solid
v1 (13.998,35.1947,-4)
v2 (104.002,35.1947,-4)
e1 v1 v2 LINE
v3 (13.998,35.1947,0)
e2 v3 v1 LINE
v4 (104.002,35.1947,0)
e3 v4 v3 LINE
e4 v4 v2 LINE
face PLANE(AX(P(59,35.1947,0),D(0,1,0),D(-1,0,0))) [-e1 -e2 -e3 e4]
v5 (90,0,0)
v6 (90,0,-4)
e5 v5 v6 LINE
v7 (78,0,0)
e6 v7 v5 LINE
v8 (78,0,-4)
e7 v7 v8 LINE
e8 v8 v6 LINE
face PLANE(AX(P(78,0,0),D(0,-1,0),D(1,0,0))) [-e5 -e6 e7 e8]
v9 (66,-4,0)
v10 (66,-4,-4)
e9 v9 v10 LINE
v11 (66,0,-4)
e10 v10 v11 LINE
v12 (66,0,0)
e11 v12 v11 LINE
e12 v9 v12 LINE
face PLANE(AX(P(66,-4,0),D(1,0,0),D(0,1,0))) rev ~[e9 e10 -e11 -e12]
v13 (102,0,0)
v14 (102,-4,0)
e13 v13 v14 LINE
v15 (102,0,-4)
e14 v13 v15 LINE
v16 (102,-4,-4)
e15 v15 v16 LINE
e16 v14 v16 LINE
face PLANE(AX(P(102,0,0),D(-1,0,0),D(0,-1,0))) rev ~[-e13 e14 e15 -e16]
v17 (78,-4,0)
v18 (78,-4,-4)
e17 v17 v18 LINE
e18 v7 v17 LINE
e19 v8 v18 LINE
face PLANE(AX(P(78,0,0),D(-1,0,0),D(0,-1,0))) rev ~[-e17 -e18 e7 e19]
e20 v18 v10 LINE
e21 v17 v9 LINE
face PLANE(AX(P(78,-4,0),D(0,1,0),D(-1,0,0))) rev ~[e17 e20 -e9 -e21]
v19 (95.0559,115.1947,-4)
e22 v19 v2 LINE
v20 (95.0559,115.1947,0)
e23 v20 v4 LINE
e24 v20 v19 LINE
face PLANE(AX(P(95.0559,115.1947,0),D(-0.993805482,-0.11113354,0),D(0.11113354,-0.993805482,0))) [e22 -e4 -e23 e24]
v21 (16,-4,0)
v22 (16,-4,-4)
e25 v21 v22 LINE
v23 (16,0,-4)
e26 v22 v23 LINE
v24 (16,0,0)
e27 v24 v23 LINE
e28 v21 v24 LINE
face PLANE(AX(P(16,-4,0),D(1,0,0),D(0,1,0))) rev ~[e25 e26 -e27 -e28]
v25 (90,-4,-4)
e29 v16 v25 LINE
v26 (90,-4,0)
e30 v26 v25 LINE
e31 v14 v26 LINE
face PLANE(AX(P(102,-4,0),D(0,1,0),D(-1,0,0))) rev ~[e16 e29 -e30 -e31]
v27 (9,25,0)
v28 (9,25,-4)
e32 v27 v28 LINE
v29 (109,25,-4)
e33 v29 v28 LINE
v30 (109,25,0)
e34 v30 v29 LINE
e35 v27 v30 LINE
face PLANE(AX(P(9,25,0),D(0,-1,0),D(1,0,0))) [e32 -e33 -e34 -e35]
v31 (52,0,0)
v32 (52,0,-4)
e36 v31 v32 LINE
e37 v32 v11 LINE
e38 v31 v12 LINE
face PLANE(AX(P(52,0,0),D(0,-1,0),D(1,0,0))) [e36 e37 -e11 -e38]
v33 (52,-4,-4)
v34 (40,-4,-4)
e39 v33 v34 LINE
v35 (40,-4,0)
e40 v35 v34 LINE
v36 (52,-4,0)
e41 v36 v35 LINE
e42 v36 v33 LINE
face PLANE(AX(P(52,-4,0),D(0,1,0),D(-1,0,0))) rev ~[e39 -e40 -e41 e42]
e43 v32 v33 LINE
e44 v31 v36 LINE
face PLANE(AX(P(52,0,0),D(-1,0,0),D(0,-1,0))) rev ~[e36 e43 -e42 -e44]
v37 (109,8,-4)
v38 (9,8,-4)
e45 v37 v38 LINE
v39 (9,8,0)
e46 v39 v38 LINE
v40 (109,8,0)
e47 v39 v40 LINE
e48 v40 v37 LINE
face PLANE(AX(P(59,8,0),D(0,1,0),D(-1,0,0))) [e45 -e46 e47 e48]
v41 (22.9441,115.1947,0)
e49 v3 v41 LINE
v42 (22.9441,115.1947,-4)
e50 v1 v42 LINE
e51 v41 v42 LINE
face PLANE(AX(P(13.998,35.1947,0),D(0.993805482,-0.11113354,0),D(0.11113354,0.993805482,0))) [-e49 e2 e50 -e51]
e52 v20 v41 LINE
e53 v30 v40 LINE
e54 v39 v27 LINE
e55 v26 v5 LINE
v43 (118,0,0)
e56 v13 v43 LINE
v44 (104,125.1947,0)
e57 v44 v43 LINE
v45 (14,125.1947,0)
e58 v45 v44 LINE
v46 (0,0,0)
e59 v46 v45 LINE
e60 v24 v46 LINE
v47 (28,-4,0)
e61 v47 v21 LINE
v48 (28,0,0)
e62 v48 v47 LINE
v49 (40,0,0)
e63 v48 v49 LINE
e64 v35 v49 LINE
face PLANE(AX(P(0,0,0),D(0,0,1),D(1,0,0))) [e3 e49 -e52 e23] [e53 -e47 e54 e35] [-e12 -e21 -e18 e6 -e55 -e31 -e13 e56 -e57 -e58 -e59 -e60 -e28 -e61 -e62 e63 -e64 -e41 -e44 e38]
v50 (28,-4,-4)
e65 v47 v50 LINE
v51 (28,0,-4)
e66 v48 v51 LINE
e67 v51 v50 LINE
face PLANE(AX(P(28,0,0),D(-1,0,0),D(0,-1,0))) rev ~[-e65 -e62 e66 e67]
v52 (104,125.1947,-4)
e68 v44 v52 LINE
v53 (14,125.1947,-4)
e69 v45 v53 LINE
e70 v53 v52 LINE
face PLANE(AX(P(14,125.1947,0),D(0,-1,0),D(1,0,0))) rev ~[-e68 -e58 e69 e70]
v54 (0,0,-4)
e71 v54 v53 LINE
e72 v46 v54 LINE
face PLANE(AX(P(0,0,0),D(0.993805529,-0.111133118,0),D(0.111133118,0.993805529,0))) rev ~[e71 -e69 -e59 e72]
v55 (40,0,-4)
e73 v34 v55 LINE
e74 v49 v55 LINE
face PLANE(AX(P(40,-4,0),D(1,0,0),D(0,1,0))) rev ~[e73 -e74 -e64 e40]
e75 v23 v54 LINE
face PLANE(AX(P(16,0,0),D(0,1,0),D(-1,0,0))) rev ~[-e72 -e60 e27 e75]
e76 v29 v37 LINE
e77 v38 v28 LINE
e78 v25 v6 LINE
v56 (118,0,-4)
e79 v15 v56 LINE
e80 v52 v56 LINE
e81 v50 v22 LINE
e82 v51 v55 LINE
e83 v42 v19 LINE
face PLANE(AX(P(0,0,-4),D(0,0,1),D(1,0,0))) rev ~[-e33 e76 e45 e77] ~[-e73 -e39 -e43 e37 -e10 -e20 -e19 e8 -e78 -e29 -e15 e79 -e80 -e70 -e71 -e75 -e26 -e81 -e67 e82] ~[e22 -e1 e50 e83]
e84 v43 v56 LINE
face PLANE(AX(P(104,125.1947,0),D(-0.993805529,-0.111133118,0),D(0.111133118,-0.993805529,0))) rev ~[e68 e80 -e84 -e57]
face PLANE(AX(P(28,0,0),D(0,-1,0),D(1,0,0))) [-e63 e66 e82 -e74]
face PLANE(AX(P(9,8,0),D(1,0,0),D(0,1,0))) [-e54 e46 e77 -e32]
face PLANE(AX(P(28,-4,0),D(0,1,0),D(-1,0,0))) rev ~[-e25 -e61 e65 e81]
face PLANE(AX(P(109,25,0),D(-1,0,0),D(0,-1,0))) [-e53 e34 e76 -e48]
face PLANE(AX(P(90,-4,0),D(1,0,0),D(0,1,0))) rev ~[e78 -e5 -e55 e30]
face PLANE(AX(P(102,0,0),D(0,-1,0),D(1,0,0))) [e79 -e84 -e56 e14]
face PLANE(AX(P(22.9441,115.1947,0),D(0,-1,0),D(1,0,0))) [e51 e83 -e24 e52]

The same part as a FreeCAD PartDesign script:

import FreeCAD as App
import Part
import Sketcher

V = App.Vector
Q = App.Units.Quantity

doc = App.newDocument("Part")
body = doc.addObject("PartDesign::Body", "Body")

# Sketch on XY plane
sketch1 = body.newObject("Sketcher::SketchObject", "Sketch")
sketch1.AttachmentSupport = (doc.getObject("XY_Plane"), [""])
sketch1.MapMode = "FlatFace"
sketch1.addGeometry([
    Part.LineSegment(V(14, 125.2, 0), V(0, 0, 0)),  # 0
    Part.LineSegment(V(0, 0, 0), V(16, 0, 0)),  # 1
    Part.LineSegment(V(16, 0, 0), V(16, -4, 0)),  # 2
    Part.LineSegment(V(16, -4, 0), V(28, -4, 0)),  # 3
    Part.LineSegment(V(28, -4, 0), V(28, 0, 0)),  # 4
    Part.LineSegment(V(28, 0, 0), V(40, 0, 0)),  # 5
    Part.LineSegment(V(40, 0, 0), V(40, -4, 0)),  # 6
    Part.LineSegment(V(40, -4, 0), V(52, -4, 0)),  # 7
    Part.LineSegment(V(52, -4, 0), V(52, 0, 0)),  # 8
    Part.LineSegment(V(52, 0, 0), V(66, 0, 0)),  # 9
    Part.LineSegment(V(66, 0, 0), V(66, -4, 0)),  # 10
    Part.LineSegment(V(66, -4, 0), V(78, -4, 0)),  # 11
    Part.LineSegment(V(78, -4, 0), V(78, 0, 0)),  # 12
    Part.LineSegment(V(78, 0, 0), V(90, 0, 0)),  # 13
    Part.LineSegment(V(90, 0, 0), V(90, -4, 0)),  # 14
    Part.LineSegment(V(90, -4, 0), V(102, -4, 0)),  # 15
    Part.LineSegment(V(102, -4, 0), V(102, 0, 0)),  # 16
    Part.LineSegment(V(102, 0, 0), V(118, 0, 0)),  # 17
    Part.LineSegment(V(118, 0, 0), V(104, 125.2, 0)),  # 18
    Part.LineSegment(V(104, 125.2, 0), V(14, 125.2, 0)),  # 19
], False)
sketch1.addConstraint([
    Sketcher.Constraint("Coincident", 0, 2, 1, 1),
    Sketcher.Constraint("Coincident", 1, 2, 2, 1),
    Sketcher.Constraint("Coincident", 2, 2, 3, 1),
    Sketcher.Constraint("Coincident", 3, 2, 4, 1),
    Sketcher.Constraint("Coincident", 4, 2, 5, 1),
    Sketcher.Constraint("Coincident", 5, 2, 6, 1),
    Sketcher.Constraint("Coincident", 6, 2, 7, 1),
    Sketcher.Constraint("Coincident", 7, 2, 8, 1),
    Sketcher.Constraint("Coincident", 8, 2, 9, 1),
    Sketcher.Constraint("Coincident", 9, 2, 10, 1),
    Sketcher.Constraint("Coincident", 10, 2, 11, 1),
    Sketcher.Constraint("Coincident", 11, 2, 12, 1),
    Sketcher.Constraint("Coincident", 12, 2, 13, 1),
    Sketcher.Constraint("Coincident", 13, 2, 14, 1),
    Sketcher.Constraint("Coincident", 14, 2, 15, 1),
    Sketcher.Constraint("Coincident", 15, 2, 16, 1),
    Sketcher.Constraint("Coincident", 16, 2, 17, 1),
    Sketcher.Constraint("Coincident", 17, 2, 18, 1),
    Sketcher.Constraint("Coincident", 18, 2, 19, 1),
    Sketcher.Constraint("Coincident", 19, 2, 0, 1),
    Sketcher.Constraint("Horizontal", 1),
    Sketcher.Constraint("Vertical", 2),
    Sketcher.Constraint("Horizontal", 3),
    Sketcher.Constraint("Vertical", 4),
    Sketcher.Constraint("Horizontal", 5),
    Sketcher.Constraint("Vertical", 6),
    Sketcher.Constraint("Horizontal", 7),
    Sketcher.Constraint("Vertical", 8),
    Sketcher.Constraint("Horizontal", 9),
    Sketcher.Constraint("Vertical", 10),
    Sketcher.Constraint("Horizontal", 11),
    Sketcher.Constraint("Vertical", 12),
    Sketcher.Constraint("Horizontal", 13),
    Sketcher.Constraint("Vertical", 14),
    Sketcher.Constraint("Horizontal", 15),
    Sketcher.Constraint("Vertical", 16),
    Sketcher.Constraint("Horizontal", 17),
    Sketcher.Constraint("Horizontal", 19),
    Sketcher.Constraint("Coincident", 0, 2, -1, 1),
    Sketcher.Constraint("PointOnObject", 4, 2, -1),
    Sketcher.Constraint("PointOnObject", 8, 2, -1),
    Sketcher.Constraint("PointOnObject", 12, 2, -1),
    Sketcher.Constraint("PointOnObject", 16, 2, -1),
    Sketcher.Constraint("Horizontal", 3, 2, 6, 2),
    Sketcher.Constraint("Horizontal", 7, 2, 10, 2),
    Sketcher.Constraint("Horizontal", 11, 2, 14, 2),
    Sketcher.Constraint("Equal", 3, 5),
    Sketcher.Constraint("Equal", 5, 7),
    Sketcher.Constraint("Equal", 7, 11),
    Sketcher.Constraint("Equal", 11, 13),
    Sketcher.Constraint("Equal", 13, 15),
    Sketcher.Constraint("Equal", 1, 17),
    Sketcher.Constraint("Equal", 0, 18),
    Sketcher.Constraint("DistanceX", 1, 1, 1, 2, 16.0),
    Sketcher.Constraint("DistanceX", 3, 1, 3, 2, 12.0),
    Sketcher.Constraint("DistanceX", 9, 1, 9, 2, 14.0),
    Sketcher.Constraint("DistanceX", 19, 2, 19, 1, 90.0),
    Sketcher.Constraint("DistanceY", 2, 2, 2, 1, 4.0),
    Sketcher.Constraint("Angle", 0, Q("-96.3806 deg")),
])
pad1 = body.newObject("PartDesign::Pad", "Pad")
pad1.Profile = sketch1
pad1.Length = 4
pad1.Reversed = True

# Sketch on XY plane
sketch2 = body.newObject("Sketcher::SketchObject", "Sketch001")
sketch2.AttachmentSupport = (doc.getObject("XY_Plane"), [""])
sketch2.MapMode = "FlatFace"
sketch2.addGeometry([
    Part.LineSegment(V(14, 35, 0), V(104, 35, 0)),  # 0
    Part.LineSegment(V(104, 35, 0), V(95, 115, 0)),  # 1
    Part.LineSegment(V(95, 115, 0), V(23, 115, 0)),  # 2
    Part.LineSegment(V(23, 115, 0), V(14, 35, 0)),  # 3
    Part.LineSegment(V(9, 25, 0), V(9, 8, 0)),  # 4
    Part.LineSegment(V(9, 8, 0), V(109, 8, 0)),  # 5
    Part.LineSegment(V(109, 8, 0), V(109, 25, 0)),  # 6
    Part.LineSegment(V(109, 25, 0), V(9, 25, 0)),  # 7
], False)
sketch2.addConstraint([
    Sketcher.Constraint("Coincident", 0, 2, 1, 1),
    Sketcher.Constraint("Coincident", 1, 2, 2, 1),
    Sketcher.Constraint("Coincident", 2, 2, 3, 1),
    Sketcher.Constraint("Coincident", 3, 2, 0, 1),
    Sketcher.Constraint("Coincident", 4, 2, 5, 1),
    Sketcher.Constraint("Coincident", 5, 2, 6, 1),
    Sketcher.Constraint("Coincident", 6, 2, 7, 1),
    Sketcher.Constraint("Coincident", 7, 2, 4, 1),
    Sketcher.Constraint("Horizontal", 0),
    Sketcher.Constraint("Horizontal", 2),
    Sketcher.Constraint("Vertical", 4),
    Sketcher.Constraint("Horizontal", 5),
    Sketcher.Constraint("Vertical", 6),
    Sketcher.Constraint("Horizontal", 7),
    Sketcher.Constraint("Equal", 1, 3),
    Sketcher.Constraint("DistanceX", 5, 1, 5, 2, 100.0),
    Sketcher.Constraint("DistanceY", 4, 2, 4, 1, 17.0),
    Sketcher.Constraint("DistanceY", -1, 1, 4, 2, 8.0),
    Sketcher.Constraint("DistanceY", 0, 2, 1, 2, 80.0),
    Sketcher.Constraint("DistanceX", -1, 1, 4, 2, 9.0),
    Sketcher.Constraint("Angle", 1, Q("96.3807 deg")),
    Sketcher.Constraint("DistanceX", 0, 1, 0, 2, 90.004),
    Sketcher.Constraint("DistanceX", -1, 1, 0, 2, 104.002),
    Sketcher.Constraint("DistanceY", -1, 1, 0, 2, 35.1947),
])
pocket1 = body.newObject("PartDesign::Pocket", "Pocket")
pocket1.Profile = sketch2
pocket1.Length = 4

doc.recompute()
